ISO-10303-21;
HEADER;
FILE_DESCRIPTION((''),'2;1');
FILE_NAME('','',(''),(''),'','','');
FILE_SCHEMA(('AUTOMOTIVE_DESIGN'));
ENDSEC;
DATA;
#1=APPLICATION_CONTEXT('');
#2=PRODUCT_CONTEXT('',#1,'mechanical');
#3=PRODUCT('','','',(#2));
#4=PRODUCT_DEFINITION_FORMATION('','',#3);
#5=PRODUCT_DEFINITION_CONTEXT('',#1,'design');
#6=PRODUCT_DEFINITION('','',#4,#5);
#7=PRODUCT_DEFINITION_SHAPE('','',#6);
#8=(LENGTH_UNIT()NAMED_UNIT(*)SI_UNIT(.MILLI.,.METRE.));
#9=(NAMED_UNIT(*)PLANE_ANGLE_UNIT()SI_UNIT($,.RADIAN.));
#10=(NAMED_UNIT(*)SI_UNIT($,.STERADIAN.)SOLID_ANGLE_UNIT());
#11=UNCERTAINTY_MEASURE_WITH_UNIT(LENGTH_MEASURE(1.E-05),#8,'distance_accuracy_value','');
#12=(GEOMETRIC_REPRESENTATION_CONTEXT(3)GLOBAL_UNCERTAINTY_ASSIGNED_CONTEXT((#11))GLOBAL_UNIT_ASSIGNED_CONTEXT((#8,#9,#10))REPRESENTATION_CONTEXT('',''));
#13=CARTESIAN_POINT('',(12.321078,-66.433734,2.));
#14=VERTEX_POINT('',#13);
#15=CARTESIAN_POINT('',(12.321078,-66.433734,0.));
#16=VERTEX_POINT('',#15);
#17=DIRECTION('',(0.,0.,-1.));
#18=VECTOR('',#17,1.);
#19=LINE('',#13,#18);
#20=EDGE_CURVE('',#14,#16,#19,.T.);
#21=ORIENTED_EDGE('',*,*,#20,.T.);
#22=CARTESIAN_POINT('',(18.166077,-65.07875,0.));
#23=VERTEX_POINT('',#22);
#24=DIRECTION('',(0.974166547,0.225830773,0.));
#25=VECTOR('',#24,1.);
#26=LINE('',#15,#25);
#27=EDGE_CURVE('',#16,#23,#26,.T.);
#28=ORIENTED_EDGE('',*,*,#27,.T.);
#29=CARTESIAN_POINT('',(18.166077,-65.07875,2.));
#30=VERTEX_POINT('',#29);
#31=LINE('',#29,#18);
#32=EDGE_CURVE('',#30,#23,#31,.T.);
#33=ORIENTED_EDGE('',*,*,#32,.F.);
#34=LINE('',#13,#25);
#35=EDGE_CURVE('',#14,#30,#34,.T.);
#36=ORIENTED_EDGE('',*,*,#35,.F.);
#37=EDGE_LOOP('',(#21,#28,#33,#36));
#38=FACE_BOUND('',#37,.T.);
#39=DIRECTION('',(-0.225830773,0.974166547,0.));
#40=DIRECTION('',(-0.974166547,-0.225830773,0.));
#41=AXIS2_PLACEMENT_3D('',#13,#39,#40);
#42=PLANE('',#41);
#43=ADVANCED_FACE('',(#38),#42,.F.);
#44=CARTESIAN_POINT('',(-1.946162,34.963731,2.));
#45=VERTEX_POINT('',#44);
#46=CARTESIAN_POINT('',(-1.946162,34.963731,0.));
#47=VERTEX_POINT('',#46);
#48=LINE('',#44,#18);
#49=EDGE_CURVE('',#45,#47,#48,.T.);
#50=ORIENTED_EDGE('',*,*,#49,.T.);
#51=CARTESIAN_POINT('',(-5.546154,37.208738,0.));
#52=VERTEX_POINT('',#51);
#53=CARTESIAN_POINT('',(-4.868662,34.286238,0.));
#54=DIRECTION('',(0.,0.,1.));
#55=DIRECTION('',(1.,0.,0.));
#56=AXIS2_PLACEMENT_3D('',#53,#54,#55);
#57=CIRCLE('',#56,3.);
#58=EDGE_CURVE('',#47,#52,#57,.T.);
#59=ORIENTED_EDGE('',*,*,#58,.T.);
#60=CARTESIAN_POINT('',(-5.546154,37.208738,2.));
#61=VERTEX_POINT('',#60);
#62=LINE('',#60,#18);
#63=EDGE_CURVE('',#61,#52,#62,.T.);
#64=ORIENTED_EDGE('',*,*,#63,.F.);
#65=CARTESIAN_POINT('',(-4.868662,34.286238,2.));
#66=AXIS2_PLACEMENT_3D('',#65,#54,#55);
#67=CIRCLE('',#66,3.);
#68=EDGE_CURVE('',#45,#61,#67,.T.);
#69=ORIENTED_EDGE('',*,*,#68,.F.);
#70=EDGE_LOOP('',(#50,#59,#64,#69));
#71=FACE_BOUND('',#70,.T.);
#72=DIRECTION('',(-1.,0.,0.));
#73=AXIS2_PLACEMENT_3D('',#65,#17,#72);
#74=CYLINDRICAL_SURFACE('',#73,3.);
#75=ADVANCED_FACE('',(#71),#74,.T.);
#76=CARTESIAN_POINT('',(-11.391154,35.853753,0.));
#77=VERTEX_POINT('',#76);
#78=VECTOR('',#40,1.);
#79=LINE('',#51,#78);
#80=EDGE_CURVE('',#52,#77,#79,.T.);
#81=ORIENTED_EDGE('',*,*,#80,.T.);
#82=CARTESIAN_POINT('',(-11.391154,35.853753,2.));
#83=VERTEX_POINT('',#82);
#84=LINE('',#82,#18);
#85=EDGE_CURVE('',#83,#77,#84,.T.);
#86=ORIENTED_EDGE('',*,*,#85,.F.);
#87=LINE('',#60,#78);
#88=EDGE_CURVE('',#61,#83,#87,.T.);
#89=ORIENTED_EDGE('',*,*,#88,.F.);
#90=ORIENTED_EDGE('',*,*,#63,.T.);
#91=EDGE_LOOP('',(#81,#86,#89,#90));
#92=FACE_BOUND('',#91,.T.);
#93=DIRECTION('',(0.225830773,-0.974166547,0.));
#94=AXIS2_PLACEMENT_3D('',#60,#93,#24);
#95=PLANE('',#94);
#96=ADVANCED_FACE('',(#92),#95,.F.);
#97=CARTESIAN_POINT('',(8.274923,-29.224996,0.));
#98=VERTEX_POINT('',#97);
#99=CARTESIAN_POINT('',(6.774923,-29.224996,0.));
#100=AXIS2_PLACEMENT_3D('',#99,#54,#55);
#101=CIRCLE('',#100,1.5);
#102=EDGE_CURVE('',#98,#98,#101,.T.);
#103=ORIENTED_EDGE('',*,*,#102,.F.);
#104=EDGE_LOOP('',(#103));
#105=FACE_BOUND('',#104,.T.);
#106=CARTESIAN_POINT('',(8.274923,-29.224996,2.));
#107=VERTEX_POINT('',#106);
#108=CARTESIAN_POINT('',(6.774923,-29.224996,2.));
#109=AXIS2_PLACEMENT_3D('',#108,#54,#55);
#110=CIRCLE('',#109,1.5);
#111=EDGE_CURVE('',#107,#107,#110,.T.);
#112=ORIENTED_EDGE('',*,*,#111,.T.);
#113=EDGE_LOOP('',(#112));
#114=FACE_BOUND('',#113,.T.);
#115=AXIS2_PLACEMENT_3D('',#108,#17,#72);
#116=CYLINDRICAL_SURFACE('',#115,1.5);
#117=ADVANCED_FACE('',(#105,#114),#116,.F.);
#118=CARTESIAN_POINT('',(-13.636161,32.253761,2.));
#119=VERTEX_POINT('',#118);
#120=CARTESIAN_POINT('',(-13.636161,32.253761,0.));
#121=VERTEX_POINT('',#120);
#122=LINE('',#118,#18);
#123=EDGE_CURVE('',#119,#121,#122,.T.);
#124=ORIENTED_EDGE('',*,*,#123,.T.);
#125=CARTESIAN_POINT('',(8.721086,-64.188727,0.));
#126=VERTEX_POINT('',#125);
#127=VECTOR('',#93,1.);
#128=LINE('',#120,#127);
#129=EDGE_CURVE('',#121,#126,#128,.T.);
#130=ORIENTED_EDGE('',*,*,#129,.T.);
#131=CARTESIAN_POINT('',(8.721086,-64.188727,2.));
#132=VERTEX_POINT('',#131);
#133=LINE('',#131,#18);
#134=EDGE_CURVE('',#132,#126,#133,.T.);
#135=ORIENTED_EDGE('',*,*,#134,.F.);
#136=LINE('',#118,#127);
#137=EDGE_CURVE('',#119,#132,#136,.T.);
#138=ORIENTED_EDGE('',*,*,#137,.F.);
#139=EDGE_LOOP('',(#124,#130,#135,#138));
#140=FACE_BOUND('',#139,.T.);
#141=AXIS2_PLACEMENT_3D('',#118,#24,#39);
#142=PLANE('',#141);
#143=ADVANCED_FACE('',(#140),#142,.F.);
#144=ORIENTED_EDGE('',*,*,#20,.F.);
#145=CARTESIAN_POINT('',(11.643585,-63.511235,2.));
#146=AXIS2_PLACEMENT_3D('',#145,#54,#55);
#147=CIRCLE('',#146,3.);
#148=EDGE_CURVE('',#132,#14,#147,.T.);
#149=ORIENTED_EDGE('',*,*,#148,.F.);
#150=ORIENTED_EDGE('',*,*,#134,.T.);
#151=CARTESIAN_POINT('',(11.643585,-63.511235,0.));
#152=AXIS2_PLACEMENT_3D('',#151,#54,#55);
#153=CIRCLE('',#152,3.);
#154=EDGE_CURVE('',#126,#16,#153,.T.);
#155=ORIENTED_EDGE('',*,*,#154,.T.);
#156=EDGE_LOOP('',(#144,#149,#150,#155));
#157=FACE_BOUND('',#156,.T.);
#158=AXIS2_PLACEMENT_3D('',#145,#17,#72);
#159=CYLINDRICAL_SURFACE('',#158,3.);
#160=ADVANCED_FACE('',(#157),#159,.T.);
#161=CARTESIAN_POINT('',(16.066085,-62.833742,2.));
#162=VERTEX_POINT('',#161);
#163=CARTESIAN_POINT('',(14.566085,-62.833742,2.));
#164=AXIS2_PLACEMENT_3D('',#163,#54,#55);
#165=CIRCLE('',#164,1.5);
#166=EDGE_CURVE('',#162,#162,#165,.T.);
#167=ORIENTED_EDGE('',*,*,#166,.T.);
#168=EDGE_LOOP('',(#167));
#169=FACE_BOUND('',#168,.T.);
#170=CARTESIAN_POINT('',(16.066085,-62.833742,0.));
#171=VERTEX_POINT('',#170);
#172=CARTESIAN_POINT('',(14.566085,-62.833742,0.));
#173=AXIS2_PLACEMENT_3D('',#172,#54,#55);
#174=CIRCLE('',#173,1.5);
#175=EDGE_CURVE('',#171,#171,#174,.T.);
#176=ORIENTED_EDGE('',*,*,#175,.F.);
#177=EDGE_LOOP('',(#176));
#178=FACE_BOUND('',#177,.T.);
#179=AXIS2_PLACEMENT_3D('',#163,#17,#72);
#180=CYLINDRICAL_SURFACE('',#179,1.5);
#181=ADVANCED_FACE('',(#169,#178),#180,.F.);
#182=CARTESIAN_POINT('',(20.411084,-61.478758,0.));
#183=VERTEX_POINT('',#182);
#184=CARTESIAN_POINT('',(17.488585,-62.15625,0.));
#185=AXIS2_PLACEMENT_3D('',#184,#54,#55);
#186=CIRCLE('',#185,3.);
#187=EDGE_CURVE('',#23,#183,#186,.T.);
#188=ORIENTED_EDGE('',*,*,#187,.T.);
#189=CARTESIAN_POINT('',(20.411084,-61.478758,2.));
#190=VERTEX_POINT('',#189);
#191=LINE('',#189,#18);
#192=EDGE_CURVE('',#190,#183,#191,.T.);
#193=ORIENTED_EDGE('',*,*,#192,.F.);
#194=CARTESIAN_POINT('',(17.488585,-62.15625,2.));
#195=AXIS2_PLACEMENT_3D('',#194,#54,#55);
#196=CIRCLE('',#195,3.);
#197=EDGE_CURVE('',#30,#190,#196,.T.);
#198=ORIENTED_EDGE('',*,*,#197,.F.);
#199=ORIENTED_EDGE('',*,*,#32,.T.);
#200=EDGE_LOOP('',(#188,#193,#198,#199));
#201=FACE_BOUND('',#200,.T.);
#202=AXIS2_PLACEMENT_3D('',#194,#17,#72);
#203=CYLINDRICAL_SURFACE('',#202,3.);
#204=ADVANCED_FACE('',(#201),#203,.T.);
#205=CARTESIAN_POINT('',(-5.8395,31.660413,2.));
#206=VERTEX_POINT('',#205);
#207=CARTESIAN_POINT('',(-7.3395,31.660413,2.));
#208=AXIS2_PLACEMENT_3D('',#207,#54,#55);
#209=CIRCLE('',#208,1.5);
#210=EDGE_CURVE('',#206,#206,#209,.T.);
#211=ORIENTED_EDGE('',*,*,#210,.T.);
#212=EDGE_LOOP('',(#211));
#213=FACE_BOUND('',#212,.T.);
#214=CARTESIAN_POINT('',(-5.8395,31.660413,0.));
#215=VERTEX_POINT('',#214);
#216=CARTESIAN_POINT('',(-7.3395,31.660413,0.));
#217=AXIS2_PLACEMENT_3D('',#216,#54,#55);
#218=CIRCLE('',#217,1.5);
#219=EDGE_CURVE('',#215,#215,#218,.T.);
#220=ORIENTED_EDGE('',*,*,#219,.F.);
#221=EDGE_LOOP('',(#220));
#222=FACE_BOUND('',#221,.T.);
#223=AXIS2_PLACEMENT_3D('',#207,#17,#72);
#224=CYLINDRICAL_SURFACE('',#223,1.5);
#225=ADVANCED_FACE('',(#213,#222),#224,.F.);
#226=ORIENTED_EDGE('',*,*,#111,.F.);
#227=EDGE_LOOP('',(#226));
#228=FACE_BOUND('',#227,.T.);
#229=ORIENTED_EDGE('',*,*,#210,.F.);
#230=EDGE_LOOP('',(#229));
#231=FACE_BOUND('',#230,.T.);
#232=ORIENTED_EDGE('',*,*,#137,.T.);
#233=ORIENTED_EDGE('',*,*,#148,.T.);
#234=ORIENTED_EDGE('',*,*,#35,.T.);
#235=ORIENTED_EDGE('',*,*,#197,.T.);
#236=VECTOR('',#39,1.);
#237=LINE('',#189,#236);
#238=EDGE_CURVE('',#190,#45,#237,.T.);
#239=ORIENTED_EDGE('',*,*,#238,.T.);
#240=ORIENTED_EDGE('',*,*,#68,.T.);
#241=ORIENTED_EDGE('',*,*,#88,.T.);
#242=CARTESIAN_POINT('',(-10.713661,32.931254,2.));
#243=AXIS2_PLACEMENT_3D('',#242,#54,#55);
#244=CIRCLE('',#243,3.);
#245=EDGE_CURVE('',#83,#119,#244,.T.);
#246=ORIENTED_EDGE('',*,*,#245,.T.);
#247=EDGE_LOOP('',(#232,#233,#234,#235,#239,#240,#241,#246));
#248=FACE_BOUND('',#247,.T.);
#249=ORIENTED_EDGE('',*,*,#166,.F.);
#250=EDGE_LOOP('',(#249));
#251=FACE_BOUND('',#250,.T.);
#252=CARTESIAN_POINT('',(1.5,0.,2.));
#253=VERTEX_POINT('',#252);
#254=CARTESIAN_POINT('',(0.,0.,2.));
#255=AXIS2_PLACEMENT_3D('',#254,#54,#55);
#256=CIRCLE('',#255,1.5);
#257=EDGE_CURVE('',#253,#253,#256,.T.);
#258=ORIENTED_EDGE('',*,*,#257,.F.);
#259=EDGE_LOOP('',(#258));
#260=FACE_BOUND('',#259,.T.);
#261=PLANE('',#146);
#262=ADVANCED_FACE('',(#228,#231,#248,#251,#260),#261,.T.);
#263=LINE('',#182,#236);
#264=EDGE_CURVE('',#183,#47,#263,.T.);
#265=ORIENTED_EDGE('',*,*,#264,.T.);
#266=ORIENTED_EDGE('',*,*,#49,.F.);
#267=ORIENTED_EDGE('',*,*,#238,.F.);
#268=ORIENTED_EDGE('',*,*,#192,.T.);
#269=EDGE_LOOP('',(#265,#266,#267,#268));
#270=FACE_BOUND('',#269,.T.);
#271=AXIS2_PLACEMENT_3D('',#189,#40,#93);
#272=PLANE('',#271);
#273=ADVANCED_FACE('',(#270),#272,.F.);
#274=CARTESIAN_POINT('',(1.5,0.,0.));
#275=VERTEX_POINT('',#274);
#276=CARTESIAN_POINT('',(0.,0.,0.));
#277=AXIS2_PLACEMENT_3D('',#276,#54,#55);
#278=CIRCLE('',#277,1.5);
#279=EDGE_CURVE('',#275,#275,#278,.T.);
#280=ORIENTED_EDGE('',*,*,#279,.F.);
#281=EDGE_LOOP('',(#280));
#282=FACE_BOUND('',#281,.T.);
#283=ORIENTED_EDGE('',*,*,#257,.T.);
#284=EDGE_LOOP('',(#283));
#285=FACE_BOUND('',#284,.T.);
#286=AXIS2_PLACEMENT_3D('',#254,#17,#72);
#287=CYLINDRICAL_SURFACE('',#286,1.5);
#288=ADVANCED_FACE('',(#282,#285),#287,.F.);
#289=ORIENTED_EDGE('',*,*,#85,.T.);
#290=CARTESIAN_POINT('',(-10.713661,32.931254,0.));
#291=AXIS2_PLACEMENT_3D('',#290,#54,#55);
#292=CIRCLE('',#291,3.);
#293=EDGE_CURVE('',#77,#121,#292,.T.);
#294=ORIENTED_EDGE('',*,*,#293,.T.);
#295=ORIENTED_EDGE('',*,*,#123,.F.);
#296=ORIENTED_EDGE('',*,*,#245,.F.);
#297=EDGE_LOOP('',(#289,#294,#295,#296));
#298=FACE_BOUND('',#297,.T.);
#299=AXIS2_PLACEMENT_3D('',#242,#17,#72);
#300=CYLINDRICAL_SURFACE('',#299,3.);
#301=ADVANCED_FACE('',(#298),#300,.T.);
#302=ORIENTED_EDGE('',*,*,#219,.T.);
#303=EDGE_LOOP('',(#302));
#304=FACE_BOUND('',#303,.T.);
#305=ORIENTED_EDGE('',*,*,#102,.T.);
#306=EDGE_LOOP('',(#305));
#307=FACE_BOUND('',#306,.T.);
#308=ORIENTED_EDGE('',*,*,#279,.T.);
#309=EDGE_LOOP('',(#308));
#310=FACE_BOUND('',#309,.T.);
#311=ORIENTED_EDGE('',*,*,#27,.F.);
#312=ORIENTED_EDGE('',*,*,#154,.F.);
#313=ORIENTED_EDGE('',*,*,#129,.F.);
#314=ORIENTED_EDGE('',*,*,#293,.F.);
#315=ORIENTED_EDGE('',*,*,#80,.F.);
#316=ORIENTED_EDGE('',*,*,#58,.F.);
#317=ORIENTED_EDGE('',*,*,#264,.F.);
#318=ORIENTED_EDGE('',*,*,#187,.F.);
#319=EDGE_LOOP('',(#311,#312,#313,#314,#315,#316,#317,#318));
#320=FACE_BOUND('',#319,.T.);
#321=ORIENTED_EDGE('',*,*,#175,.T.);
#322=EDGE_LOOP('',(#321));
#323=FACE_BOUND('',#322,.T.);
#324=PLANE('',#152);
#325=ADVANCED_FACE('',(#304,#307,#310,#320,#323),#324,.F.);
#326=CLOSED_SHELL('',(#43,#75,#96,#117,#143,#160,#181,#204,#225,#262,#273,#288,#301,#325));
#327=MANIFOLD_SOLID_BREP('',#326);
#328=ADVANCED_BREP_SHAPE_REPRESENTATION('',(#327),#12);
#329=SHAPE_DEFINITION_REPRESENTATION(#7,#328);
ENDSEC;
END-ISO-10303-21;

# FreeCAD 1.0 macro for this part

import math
import FreeCAD as App
import Part
import Sketcher
from FreeCAD import Vector
Q = App.Units.Quantity

doc = App.newDocument("Part")
body = doc.addObject("PartDesign::Body", "Body")

sketch1 = doc.addObject("Sketcher::SketchObject", "Sketch")
body.addObject(sketch1)
sketch1.AttachmentSupport = (doc.XY_Plane, [""])
sketch1.MapMode = "FlatFace"
sketch1.addGeometry([
    Part.LineSegment(Vector(-13.636161, 32.253761, 0), Vector(8.721086, -64.188727, 0)),
    Part.ArcOfCircle(Part.Circle(Vector(11.643585, -63.511235, 0), Vector(0, 0, 1), 3), math.radians(-166.948265), math.radians(-76.948265)),
    Part.LineSegment(Vector(12.321078, -66.433734, 0), Vector(18.166077, -65.07875, 0)),
    Part.ArcOfCircle(Part.Circle(Vector(17.488585, -62.15625, 0), Vector(0, 0, 1), 3), math.radians(-76.948265), math.radians(13.051735)),
    Part.LineSegment(Vector(20.411084, -61.478758, 0), Vector(-1.946162, 34.963731, 0)),
    Part.ArcOfCircle(Part.Circle(Vector(-4.868662, 34.286238, 0), Vector(0, 0, 1), 3), math.radians(13.051735), math.radians(103.051735)),
    Part.LineSegment(Vector(-5.546154, 37.208738, 0), Vector(-11.391154, 35.853753, 0)),
    Part.ArcOfCircle(Part.Circle(Vector(-10.713661, 32.931254, 0), Vector(0, 0, 1), 3), math.radians(103.051735), math.radians(193.051735)),
    Part.Circle(Vector(14.566085, -62.833742, 0), Vector(0, 0, 1), 1.5),
    Part.Circle(Vector(6.774923, -29.224996, 0), Vector(0, 0, 1), 1.5),
    Part.Circle(Vector(0, 0, 0), Vector(0, 0, 1), 1.5),
    Part.Circle(Vector(-7.3395, 31.660413, 0), Vector(0, 0, 1), 1.5),
], False)
sketch1.addConstraint([
    Sketcher.Constraint("Coincident", 0, 2, 1, 1),
    Sketcher.Constraint("Coincident", 1, 2, 2, 1),
    Sketcher.Constraint("Coincident", 2, 2, 3, 1),
    Sketcher.Constraint("Coincident", 3, 2, 4, 1),
    Sketcher.Constraint("Coincident", 4, 2, 5, 1),
    Sketcher.Constraint("Coincident", 5, 2, 6, 1),
    Sketcher.Constraint("Coincident", 6, 2, 7, 1),
    Sketcher.Constraint("Coincident", 7, 2, 0, 1),
    Sketcher.Constraint("Coincident", 10, 3, -1, 1),
    Sketcher.Constraint("Diameter", 8, Q("3 mm")),
    Sketcher.Constraint("Diameter", 9, Q("3 mm")),
    Sketcher.Constraint("Diameter", 10, Q("3 mm")),
    Sketcher.Constraint("Diameter", 11, Q("3 mm")),
    Sketcher.Constraint("Radius", 1, Q("3 mm")),
    Sketcher.Constraint("Radius", 3, Q("3 mm")),
    Sketcher.Constraint("Radius", 5, Q("3 mm")),
    Sketcher.Constraint("Radius", 7, Q("3 mm")),
    Sketcher.Constraint("Distance", 0, Q("99 mm")),
    Sketcher.Constraint("Distance", 2, Q("6 mm")),
    Sketcher.Constraint("Distance", 4, Q("99 mm")),
    Sketcher.Constraint("Distance", 6, Q("6 mm")),
    Sketcher.Constraint("DistanceX", 1, 3, 3, 3, Q("5.844999 mm")),
    Sketcher.Constraint("DistanceX", 7, 3, 5, 3, Q("5.844999 mm")),
    Sketcher.Constraint("DistanceX", 0, 2, 8, 3, Q("5.844999 mm")),
    Sketcher.Constraint("DistanceX", 1, 2, 2, 2, Q("5.844999 mm")),
    Sketcher.Constraint("DistanceX", 8, 3, 3, 2, Q("5.844999 mm")),
    Sketcher.Constraint("DistanceX", 6, 2, 5, 2, Q("5.844999 mm")),
    Sketcher.Constraint("DistanceX", 11, 3, -1, 1, Q("7.3395 mm")),
    Sketcher.Constraint("DistanceX", 1, 3, 8, 3, Q("2.9225 mm")),
    Sketcher.Constraint("DistanceY", 1, 2, 1, 3, Q("2.9225 mm")),
    Sketcher.Constraint("DistanceX", 5, 3, 4, 2, Q("2.9225 mm")),
    Sketcher.Constraint("DistanceY", 5, 3, 5, 2, Q("2.9225 mm")),
    Sketcher.Constraint("DistanceY", 3, 3, -1, 1, Q("62.15625 mm")),
    Sketcher.Constraint("DistanceY", -1, 1, 5, 3, Q("34.286238 mm")),
    Sketcher.Constraint("DistanceX", 7, 3, -1, 1, Q("10.713661 mm")),
    Sketcher.Constraint("DistanceY", 8, 3, 5, 3, Q("97.119981 mm")),
    Sketcher.Constraint("DistanceX", 9, 3, 8, 3, Q("7.791162 mm")),
    Sketcher.Constraint("DistanceY", 1, 3, 9, 3, Q("34.286238 mm")),
    Sketcher.Constraint("DistanceY", 11, 3, 7, 3, Q("1.270841 mm")),
])
pad1 = doc.addObject("PartDesign::Pad", "Pad")
body.addObject(pad1)
pad1.Profile = sketch1
pad1.Length = 2

doc.recompute()
